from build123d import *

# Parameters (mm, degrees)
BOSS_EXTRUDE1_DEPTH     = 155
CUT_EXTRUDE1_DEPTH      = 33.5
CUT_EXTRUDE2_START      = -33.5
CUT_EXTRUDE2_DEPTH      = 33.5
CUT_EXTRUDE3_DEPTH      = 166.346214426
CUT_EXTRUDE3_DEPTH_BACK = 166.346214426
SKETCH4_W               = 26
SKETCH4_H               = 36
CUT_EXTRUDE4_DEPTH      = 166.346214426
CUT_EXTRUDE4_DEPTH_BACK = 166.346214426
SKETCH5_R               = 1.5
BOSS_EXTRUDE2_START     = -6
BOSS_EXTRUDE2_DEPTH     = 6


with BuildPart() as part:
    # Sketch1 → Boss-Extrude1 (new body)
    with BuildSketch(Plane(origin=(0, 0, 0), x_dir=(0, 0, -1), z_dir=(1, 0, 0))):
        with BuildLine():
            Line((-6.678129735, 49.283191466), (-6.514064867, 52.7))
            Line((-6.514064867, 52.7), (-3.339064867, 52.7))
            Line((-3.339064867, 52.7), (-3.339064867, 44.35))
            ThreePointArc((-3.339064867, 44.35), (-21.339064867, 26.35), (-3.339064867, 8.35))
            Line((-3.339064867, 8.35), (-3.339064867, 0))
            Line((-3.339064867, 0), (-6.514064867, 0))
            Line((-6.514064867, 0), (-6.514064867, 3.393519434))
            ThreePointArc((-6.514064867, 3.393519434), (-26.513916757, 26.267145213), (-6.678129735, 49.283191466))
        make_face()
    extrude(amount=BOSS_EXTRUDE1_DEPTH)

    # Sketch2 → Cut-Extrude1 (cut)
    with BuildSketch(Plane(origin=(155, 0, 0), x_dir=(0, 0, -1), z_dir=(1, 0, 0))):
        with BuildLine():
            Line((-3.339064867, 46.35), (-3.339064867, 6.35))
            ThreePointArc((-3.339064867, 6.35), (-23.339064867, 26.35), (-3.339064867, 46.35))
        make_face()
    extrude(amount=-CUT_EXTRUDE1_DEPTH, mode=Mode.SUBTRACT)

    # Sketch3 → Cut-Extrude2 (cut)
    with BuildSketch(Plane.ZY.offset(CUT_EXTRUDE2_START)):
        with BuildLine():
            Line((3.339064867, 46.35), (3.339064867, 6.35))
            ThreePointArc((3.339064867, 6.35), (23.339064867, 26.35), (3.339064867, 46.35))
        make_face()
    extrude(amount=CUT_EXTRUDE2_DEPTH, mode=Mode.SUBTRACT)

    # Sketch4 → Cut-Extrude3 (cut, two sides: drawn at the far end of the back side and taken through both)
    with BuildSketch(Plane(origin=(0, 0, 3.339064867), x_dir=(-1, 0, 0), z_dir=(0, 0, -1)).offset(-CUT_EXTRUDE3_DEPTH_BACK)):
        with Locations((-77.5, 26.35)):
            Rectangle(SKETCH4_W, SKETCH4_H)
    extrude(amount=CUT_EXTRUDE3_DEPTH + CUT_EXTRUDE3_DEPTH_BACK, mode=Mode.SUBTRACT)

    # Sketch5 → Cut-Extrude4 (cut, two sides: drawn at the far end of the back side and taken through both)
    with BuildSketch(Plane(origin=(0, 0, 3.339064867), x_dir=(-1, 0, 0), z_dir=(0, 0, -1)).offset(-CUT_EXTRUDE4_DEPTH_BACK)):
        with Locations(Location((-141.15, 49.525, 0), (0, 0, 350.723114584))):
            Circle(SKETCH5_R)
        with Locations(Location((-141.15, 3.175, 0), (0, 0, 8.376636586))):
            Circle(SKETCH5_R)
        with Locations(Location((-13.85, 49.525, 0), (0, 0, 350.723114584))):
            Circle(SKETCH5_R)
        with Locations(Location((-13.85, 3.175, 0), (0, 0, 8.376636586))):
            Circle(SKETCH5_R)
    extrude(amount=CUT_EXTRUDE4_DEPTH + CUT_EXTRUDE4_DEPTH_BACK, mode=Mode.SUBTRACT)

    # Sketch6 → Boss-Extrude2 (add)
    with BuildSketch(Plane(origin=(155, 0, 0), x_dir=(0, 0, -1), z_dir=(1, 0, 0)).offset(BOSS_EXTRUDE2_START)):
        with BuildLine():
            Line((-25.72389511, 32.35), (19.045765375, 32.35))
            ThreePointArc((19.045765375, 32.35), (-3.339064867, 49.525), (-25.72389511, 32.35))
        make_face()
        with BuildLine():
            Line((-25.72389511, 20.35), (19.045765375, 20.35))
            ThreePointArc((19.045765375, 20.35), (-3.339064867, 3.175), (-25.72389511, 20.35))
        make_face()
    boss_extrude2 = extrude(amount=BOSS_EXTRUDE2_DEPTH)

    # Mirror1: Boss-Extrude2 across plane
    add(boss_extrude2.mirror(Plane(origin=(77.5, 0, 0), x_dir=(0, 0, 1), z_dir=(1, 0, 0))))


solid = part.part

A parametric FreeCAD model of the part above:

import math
import FreeCAD as App
import Part
import Sketcher
from FreeCAD import Vector


def add_polygon(sketch, points):
    """Adds a closed chain of lines whose ends are joined by coincident constraints."""
    first, n = sketch.GeometryCount, len(points)
    for a, b in zip(points, points[1:] + points[:1]):
        sketch.addGeometry(Part.LineSegment(App.Vector(*a, 0), App.Vector(*b, 0)), False)
    for i in range(n):
        sketch.addConstraint(Sketcher.Constraint("Coincident", first + i, 2, first + (i + 1) % n, 1))

doc = App.newDocument("Part")
params = doc.addObject("Spreadsheet::Sheet", "Params")
for row, (alias, value) in enumerate([
    ("sketch1_radius", "18 mm"),
    ("sketch1_width", "8.35 mm"),
    ("pad1_length", "155 mm"),
    ("sketch2_radius", "20 mm"),
    ("pocket1_length", "33.5 mm"),
    ("sketch3_radius", "20 mm"),
    ("pocket2_length", "33.5 mm"),
    ("sketch4_width", "26 mm"),
    ("sketch4_height", "36 mm"),
    ("sketch5_diameter", "3 mm"),
    ("pad2_length", "6 mm"),
], start=1):
    params.set(f"A{row}", alias)
    params.set(f"B{row}", "=" + value)
    params.setAlias(f"B{row}", alias)

body = doc.addObject("PartDesign::Body", "Body")

# Sketch on YZ plane
sketch1 = doc.addObject("Sketcher::SketchObject", "Sketch")
body.addObject(sketch1)
sketch1.AttachmentSupport = (doc.YZ_Plane, [""])
sketch1.MapMode = "FlatFace"
sketch1.addGeometry(Part.LineSegment(Vector(52.7, 6.514065, 0), Vector(49.283191, 6.67813, 0)), False)
sketch1.addGeometry(Part.ArcOfCircle(Part.Circle(Vector(26.35, 3.339065, 0), Vector(0, 0, 1), 23.175), math.radians(8.284035), math.radians(172.125651)), False)
sketch1.addGeometry(Part.LineSegment(Vector(3.393519, 6.514065, 0), Vector(0, 6.514065, 0)), False)
sketch1.addGeometry(Part.LineSegment(Vector(0, 6.514065, 0), Vector(0, 3.339065, 0)), False)
sketch1.addGeometry(Part.LineSegment(Vector(0, 3.339065, 0), Vector(8.35, 3.339065, 0)), False)
sketch1.addGeometry(Part.ArcOfCircle(Part.Circle(Vector(26.35, 3.339065, 0), Vector(0, 0, 1), 18), math.radians(0), math.radians(180)), False)
sketch1.addGeometry(Part.LineSegment(Vector(44.35, 3.339065, 0), Vector(52.7, 3.339065, 0)), False)
sketch1.addGeometry(Part.LineSegment(Vector(52.7, 3.339065, 0), Vector(52.7, 6.514065, 0)), False)
sketch1.addConstraint(Sketcher.Constraint("Coincident", 0, 2, 1, 1))
sketch1.addConstraint(Sketcher.Constraint("Coincident", 1, 2, 2, 1))
sketch1.addConstraint(Sketcher.Constraint("Coincident", 2, 2, 3, 1))
sketch1.addConstraint(Sketcher.Constraint("Coincident", 3, 2, 4, 1))
sketch1.addConstraint(Sketcher.Constraint("Coincident", 4, 2, 5, 2))
sketch1.addConstraint(Sketcher.Constraint("Coincident", 5, 1, 6, 1))
sketch1.addConstraint(Sketcher.Constraint("Coincident", 6, 2, 7, 1))
sketch1.addConstraint(Sketcher.Constraint("Coincident", 7, 2, 0, 1))
sketch1.addConstraint(Sketcher.Constraint("Horizontal", 2))
sketch1.addConstraint(Sketcher.Constraint("Vertical", 3))
sketch1.addConstraint(Sketcher.Constraint("Horizontal", 4))
sketch1.addConstraint(Sketcher.Constraint("Horizontal", 6))
sketch1.addConstraint(Sketcher.Constraint("Vertical", 7))
sketch1.addConstraint(Sketcher.Constraint("Coincident", 5, 3, 1, 3))
sketch1.addConstraint(Sketcher.Constraint("PointOnObject", 2, 2, -2))
sketch1.addConstraint(Sketcher.Constraint("Horizontal", 5, 3, 3, 2))
sketch1.addConstraint(Sketcher.Constraint("Horizontal", 4, 2, 5, 1))
sketch1.addConstraint(Sketcher.Constraint("Horizontal", 2, 2, 7, 2))
sketch1.addConstraint(Sketcher.Constraint("Equal", 4, 6))
sketch1.addConstraint(Sketcher.Constraint("Radius", 5, 18.0))
sketch1.addConstraint(Sketcher.Constraint("Radius", 1, 23.175))
sketch1.addConstraint(Sketcher.Constraint("DistanceX", 4, 1, 4, 2, 8.35))
sketch1.addConstraint(Sketcher.Constraint("DistanceY", 3, 2, 3, 1, 3.175))
sketch1.addConstraint(Sketcher.Constraint("DistanceX", -1, 1, 0, 2, 49.283191))
sketch1.addConstraint(Sketcher.Constraint("DistanceY", -1, 1, 0, 2, 6.67813))
sketch1.setExpression("Constraints[19]", "Params.sketch1_radius")
sketch1.setExpression("Constraints[21]", "Params.sketch1_width")
pad1 = doc.addObject("PartDesign::Pad", "Pad")
body.addObject(pad1)
pad1.Profile = sketch1
pad1.setExpression("Length", "Params.pad1_length")

# Sketch on YZ plane
sketch2 = doc.addObject("Sketcher::SketchObject", "Sketch001")
body.addObject(sketch2)
sketch2.AttachmentSupport = (doc.YZ_Plane, [""])
sketch2.MapMode = "FlatFace"
sketch2.AttachmentOffset = App.Placement(Vector(0, 0, 155), App.Rotation())
sketch2.addGeometry(Part.LineSegment(Vector(6.35, 3.339065, 0), Vector(46.35, 3.339065, 0)), False)
sketch2.addGeometry(Part.ArcOfCircle(Part.Circle(Vector(26.35, 3.339065, 0), Vector(0, 0, 1), 20), math.radians(0), math.radians(180)), False)
sketch2.addConstraint(Sketcher.Constraint("Coincident", 0, 1, 1, 2))
sketch2.addConstraint(Sketcher.Constraint("Coincident", 1, 1, 0, 2))
sketch2.addConstraint(Sketcher.Constraint("Horizontal", 0))
sketch2.addConstraint(Sketcher.Constraint("Horizontal", 1, 3, 0, 1))
sketch2.addConstraint(Sketcher.Constraint("Radius", 1, 20.0))
sketch2.addConstraint(Sketcher.Constraint("DistanceX", -1, 1, 1, 3, 26.35))
sketch2.addConstraint(Sketcher.Constraint("DistanceY", -1, 1, 1, 3, 3.339065))
sketch2.setExpression("Constraints[4]", "Params.sketch2_radius")
pocket1 = doc.addObject("PartDesign::Pocket", "Pocket")
body.addObject(pocket1)
pocket1.Profile = sketch2
pocket1.setExpression("Length", "Params.pocket1_length")

# Sketch on YZ plane
sketch3 = doc.addObject("Sketcher::SketchObject", "Sketch002")
body.addObject(sketch3)
sketch3.AttachmentSupport = (doc.YZ_Plane, [""])
sketch3.MapMode = "FlatFace"
sketch3.AttachmentOffset = App.Placement(Vector(0, 0, 33.5), App.Rotation())
sketch3.addGeometry(Part.LineSegment(Vector(46.35, 3.339065, 0), Vector(6.35, 3.339065, 0)), False)
sketch3.addGeometry(Part.ArcOfCircle(Part.Circle(Vector(26.35, 3.339065, 0), Vector(0, 0, 1), 20), math.radians(0), math.radians(180)), False)
sketch3.addConstraint(Sketcher.Constraint("Coincident", 0, 1, 1, 1))
sketch3.addConstraint(Sketcher.Constraint("Coincident", 1, 2, 0, 2))
sketch3.addConstraint(Sketcher.Constraint("Horizontal", 0))
sketch3.addConstraint(Sketcher.Constraint("Horizontal", 1, 3, 0, 1))
sketch3.addConstraint(Sketcher.Constraint("Radius", 1, 20.0))
sketch3.addConstraint(Sketcher.Constraint("DistanceX", -1, 1, 1, 3, 26.35))
sketch3.addConstraint(Sketcher.Constraint("DistanceY", -1, 1, 1, 3, 3.339065))
sketch3.setExpression("Constraints[4]", "Params.sketch3_radius")
pocket2 = doc.addObject("PartDesign::Pocket", "Pocket001")
body.addObject(pocket2)
pocket2.Profile = sketch3
pocket2.setExpression("Length", "Params.pocket2_length")

# Sketch on XY plane
sketch4 = doc.addObject("Sketcher::SketchObject", "Sketch003")
body.addObject(sketch4)
sketch4.AttachmentSupport = (doc.XY_Plane, [""])
sketch4.MapMode = "FlatFace"
sketch4.AttachmentOffset = App.Placement(Vector(0, 0, 3.339065), App.Rotation())
add_polygon(sketch4, [(90.5, 44.35), (90.5, 8.35), (64.5, 8.35), (64.5, 44.35)])  # lines 0-3
sketch4.addConstraint(Sketcher.Constraint("Vertical", 0))
sketch4.addConstraint(Sketcher.Constraint("Horizontal", 1))
sketch4.addConstraint(Sketcher.Constraint("Vertical", 2))
sketch4.addConstraint(Sketcher.Constraint("Horizontal", 3))
sketch4.addConstraint(Sketcher.Constraint("DistanceX", 1, 2, 1, 1, 26.0))
sketch4.addConstraint(Sketcher.Constraint("DistanceY", 0, 2, 0, 1, 36.0))
sketch4.addConstraint(Sketcher.Constraint("DistanceX", -1, 1, 0, 2, 90.5))
sketch4.addConstraint(Sketcher.Constraint("DistanceY", -1, 1, 0, 2, 8.35))
sketch4.setExpression("Constraints[8]", "Params.sketch4_width")
sketch4.setExpression("Constraints[9]", "Params.sketch4_height")
pocket3 = doc.addObject("PartDesign::Pocket", "Pocket002")
body.addObject(pocket3)
pocket3.Profile = sketch4
pocket3.Type = "ThroughAll"
pocket3.Midplane = True

# Sketch on XY plane
sketch5 = doc.addObject("Sketcher::SketchObject", "Sketch004")
body.addObject(sketch5)
sketch5.AttachmentSupport = (doc.XY_Plane, [""])
sketch5.MapMode = "FlatFace"
sketch5.AttachmentOffset = App.Placement(Vector(0, 0, 3.339065), App.Rotation())
sketch5.addGeometry(Part.Circle(Vector(141.15, 49.525, 0), Vector(0, 0, 1), 1.5), False)
sketch5.addGeometry(Part.Circle(Vector(141.15, 3.175, 0), Vector(0, 0, 1), 1.5), False)
sketch5.addGeometry(Part.Circle(Vector(13.85, 49.525, 0), Vector(0, 0, 1), 1.5), False)
sketch5.addGeometry(Part.Circle(Vector(13.85, 3.175, 0), Vector(0, 0, 1), 1.5), False)
sketch5.addConstraint(Sketcher.Constraint("Equal", 0, 1))
sketch5.addConstraint(Sketcher.Constraint("Equal", 1, 2))
sketch5.addConstraint(Sketcher.Constraint("Equal", 2, 3))
sketch5.addConstraint(Sketcher.Constraint("Horizontal", 0, 3, 2, 3))
sketch5.addConstraint(Sketcher.Constraint("Horizontal", 1, 3, 3, 3))
sketch5.addConstraint(Sketcher.Constraint("Vertical", 0, 3, 1, 3))
sketch5.addConstraint(Sketcher.Constraint("Vertical", 2, 3, 3, 3))
sketch5.addConstraint(Sketcher.Constraint("Diameter", 0, 3.0))
sketch5.addConstraint(Sketcher.Constraint("DistanceX", 2, 3, 0, 3, 127.3))
sketch5.addConstraint(Sketcher.Constraint("DistanceX", -1, 1, 0, 3, 141.15))
sketch5.addConstraint(Sketcher.Constraint("DistanceY", 1, 3, 0, 3, 46.35))
sketch5.addConstraint(Sketcher.Constraint("DistanceY", -1, 1, 0, 3, 49.525))
sketch5.setExpression("Constraints[7]", "Params.sketch5_diameter")
pocket4 = doc.addObject("PartDesign::Pocket", "Pocket003")
body.addObject(pocket4)
pocket4.Profile = sketch5
pocket4.Type = "ThroughAll"
pocket4.Midplane = True

# Sketch on YZ plane
sketch6 = doc.addObject("Sketcher::SketchObject", "Sketch005")
body.addObject(sketch6)
sketch6.AttachmentSupport = (doc.YZ_Plane, [""])
sketch6.MapMode = "FlatFace"
sketch6.AttachmentOffset = App.Placement(Vector(0, 0, 149), App.Rotation())
sketch6.addGeometry(Part.LineSegment(Vector(32.35, 25.723895, 0), Vector(32.35, -19.045765, 0)), False)
sketch6.addGeometry(Part.ArcOfCircle(Part.Circle(Vector(26.35, 3.339065, 0), Vector(0, 0, 1), 23.175), math.radians(-74.995217), math.radians(74.995217)), False)
sketch6.addGeometry(Part.LineSegment(Vector(20.35, -19.045765, 0), Vector(20.35, 25.723895, 0)), False)
sketch6.addGeometry(Part.ArcOfCircle(Part.Circle(Vector(26.35, 3.339065, 0), Vector(0, 0, 1), 23.175), math.radians(105.004783), math.radians(254.995217)), False)
sketch6.addConstraint(Sketcher.Constraint("Coincident", 0, 1, 1, 2))
sketch6.addConstraint(Sketcher.Constraint("Coincident", 1, 1, 0, 2))
sketch6.addConstraint(Sketcher.Constraint("Coincident", 2, 1, 3, 2))
sketch6.addConstraint(Sketcher.Constraint("Coincident", 3, 1, 2, 2))
sketch6.addConstraint(Sketcher.Constraint("Vertical", 0))
sketch6.addConstraint(Sketcher.Constraint("Vertical", 2))
sketch6.addConstraint(Sketcher.Constraint("Coincident", 3, 3, 1, 3))
sketch6.addConstraint(Sketcher.Constraint("Equal", 1, 3))
sketch6.addConstraint(Sketcher.Constraint("Horizontal", 1, 1, 2, 1))
sketch6.addConstraint(Sketcher.Constraint("Radius", 1, 23.175))
sketch6.addConstraint(Sketcher.Constraint("DistanceX", 1, 3, 0, 1, 6.0))
sketch6.addConstraint(Sketcher.Constraint("DistanceX", -1, 1, 1, 3, 26.35))
sketch6.addConstraint(Sketcher.Constraint("DistanceY", -1, 1, 1, 3, 3.339065))
pad2 = doc.addObject("PartDesign::Pad", "Pad001")
body.addObject(pad2)
pad2.Profile = sketch6
pad2.setExpression("Length", "Params.pad2_length")
doc.recompute()

datumplane = doc.addObject("PartDesign::Plane", "DatumPlane")
body.addObject(datumplane)
datumplane.AttachmentSupport = (doc.YZ_Plane, [""])
datumplane.MapMode = "FlatFace"
datumplane.AttachmentOffset = App.Placement(Vector(0, 0, 77.5), App.Rotation())
mirrored = doc.addObject("PartDesign::Mirrored", "Mirrored")
body.addObject(mirrored)
mirrored.Originals = [pad2]
mirrored.MirrorPlane = (datumplane, [""])
body.Tip = mirrored

doc.recompute()
